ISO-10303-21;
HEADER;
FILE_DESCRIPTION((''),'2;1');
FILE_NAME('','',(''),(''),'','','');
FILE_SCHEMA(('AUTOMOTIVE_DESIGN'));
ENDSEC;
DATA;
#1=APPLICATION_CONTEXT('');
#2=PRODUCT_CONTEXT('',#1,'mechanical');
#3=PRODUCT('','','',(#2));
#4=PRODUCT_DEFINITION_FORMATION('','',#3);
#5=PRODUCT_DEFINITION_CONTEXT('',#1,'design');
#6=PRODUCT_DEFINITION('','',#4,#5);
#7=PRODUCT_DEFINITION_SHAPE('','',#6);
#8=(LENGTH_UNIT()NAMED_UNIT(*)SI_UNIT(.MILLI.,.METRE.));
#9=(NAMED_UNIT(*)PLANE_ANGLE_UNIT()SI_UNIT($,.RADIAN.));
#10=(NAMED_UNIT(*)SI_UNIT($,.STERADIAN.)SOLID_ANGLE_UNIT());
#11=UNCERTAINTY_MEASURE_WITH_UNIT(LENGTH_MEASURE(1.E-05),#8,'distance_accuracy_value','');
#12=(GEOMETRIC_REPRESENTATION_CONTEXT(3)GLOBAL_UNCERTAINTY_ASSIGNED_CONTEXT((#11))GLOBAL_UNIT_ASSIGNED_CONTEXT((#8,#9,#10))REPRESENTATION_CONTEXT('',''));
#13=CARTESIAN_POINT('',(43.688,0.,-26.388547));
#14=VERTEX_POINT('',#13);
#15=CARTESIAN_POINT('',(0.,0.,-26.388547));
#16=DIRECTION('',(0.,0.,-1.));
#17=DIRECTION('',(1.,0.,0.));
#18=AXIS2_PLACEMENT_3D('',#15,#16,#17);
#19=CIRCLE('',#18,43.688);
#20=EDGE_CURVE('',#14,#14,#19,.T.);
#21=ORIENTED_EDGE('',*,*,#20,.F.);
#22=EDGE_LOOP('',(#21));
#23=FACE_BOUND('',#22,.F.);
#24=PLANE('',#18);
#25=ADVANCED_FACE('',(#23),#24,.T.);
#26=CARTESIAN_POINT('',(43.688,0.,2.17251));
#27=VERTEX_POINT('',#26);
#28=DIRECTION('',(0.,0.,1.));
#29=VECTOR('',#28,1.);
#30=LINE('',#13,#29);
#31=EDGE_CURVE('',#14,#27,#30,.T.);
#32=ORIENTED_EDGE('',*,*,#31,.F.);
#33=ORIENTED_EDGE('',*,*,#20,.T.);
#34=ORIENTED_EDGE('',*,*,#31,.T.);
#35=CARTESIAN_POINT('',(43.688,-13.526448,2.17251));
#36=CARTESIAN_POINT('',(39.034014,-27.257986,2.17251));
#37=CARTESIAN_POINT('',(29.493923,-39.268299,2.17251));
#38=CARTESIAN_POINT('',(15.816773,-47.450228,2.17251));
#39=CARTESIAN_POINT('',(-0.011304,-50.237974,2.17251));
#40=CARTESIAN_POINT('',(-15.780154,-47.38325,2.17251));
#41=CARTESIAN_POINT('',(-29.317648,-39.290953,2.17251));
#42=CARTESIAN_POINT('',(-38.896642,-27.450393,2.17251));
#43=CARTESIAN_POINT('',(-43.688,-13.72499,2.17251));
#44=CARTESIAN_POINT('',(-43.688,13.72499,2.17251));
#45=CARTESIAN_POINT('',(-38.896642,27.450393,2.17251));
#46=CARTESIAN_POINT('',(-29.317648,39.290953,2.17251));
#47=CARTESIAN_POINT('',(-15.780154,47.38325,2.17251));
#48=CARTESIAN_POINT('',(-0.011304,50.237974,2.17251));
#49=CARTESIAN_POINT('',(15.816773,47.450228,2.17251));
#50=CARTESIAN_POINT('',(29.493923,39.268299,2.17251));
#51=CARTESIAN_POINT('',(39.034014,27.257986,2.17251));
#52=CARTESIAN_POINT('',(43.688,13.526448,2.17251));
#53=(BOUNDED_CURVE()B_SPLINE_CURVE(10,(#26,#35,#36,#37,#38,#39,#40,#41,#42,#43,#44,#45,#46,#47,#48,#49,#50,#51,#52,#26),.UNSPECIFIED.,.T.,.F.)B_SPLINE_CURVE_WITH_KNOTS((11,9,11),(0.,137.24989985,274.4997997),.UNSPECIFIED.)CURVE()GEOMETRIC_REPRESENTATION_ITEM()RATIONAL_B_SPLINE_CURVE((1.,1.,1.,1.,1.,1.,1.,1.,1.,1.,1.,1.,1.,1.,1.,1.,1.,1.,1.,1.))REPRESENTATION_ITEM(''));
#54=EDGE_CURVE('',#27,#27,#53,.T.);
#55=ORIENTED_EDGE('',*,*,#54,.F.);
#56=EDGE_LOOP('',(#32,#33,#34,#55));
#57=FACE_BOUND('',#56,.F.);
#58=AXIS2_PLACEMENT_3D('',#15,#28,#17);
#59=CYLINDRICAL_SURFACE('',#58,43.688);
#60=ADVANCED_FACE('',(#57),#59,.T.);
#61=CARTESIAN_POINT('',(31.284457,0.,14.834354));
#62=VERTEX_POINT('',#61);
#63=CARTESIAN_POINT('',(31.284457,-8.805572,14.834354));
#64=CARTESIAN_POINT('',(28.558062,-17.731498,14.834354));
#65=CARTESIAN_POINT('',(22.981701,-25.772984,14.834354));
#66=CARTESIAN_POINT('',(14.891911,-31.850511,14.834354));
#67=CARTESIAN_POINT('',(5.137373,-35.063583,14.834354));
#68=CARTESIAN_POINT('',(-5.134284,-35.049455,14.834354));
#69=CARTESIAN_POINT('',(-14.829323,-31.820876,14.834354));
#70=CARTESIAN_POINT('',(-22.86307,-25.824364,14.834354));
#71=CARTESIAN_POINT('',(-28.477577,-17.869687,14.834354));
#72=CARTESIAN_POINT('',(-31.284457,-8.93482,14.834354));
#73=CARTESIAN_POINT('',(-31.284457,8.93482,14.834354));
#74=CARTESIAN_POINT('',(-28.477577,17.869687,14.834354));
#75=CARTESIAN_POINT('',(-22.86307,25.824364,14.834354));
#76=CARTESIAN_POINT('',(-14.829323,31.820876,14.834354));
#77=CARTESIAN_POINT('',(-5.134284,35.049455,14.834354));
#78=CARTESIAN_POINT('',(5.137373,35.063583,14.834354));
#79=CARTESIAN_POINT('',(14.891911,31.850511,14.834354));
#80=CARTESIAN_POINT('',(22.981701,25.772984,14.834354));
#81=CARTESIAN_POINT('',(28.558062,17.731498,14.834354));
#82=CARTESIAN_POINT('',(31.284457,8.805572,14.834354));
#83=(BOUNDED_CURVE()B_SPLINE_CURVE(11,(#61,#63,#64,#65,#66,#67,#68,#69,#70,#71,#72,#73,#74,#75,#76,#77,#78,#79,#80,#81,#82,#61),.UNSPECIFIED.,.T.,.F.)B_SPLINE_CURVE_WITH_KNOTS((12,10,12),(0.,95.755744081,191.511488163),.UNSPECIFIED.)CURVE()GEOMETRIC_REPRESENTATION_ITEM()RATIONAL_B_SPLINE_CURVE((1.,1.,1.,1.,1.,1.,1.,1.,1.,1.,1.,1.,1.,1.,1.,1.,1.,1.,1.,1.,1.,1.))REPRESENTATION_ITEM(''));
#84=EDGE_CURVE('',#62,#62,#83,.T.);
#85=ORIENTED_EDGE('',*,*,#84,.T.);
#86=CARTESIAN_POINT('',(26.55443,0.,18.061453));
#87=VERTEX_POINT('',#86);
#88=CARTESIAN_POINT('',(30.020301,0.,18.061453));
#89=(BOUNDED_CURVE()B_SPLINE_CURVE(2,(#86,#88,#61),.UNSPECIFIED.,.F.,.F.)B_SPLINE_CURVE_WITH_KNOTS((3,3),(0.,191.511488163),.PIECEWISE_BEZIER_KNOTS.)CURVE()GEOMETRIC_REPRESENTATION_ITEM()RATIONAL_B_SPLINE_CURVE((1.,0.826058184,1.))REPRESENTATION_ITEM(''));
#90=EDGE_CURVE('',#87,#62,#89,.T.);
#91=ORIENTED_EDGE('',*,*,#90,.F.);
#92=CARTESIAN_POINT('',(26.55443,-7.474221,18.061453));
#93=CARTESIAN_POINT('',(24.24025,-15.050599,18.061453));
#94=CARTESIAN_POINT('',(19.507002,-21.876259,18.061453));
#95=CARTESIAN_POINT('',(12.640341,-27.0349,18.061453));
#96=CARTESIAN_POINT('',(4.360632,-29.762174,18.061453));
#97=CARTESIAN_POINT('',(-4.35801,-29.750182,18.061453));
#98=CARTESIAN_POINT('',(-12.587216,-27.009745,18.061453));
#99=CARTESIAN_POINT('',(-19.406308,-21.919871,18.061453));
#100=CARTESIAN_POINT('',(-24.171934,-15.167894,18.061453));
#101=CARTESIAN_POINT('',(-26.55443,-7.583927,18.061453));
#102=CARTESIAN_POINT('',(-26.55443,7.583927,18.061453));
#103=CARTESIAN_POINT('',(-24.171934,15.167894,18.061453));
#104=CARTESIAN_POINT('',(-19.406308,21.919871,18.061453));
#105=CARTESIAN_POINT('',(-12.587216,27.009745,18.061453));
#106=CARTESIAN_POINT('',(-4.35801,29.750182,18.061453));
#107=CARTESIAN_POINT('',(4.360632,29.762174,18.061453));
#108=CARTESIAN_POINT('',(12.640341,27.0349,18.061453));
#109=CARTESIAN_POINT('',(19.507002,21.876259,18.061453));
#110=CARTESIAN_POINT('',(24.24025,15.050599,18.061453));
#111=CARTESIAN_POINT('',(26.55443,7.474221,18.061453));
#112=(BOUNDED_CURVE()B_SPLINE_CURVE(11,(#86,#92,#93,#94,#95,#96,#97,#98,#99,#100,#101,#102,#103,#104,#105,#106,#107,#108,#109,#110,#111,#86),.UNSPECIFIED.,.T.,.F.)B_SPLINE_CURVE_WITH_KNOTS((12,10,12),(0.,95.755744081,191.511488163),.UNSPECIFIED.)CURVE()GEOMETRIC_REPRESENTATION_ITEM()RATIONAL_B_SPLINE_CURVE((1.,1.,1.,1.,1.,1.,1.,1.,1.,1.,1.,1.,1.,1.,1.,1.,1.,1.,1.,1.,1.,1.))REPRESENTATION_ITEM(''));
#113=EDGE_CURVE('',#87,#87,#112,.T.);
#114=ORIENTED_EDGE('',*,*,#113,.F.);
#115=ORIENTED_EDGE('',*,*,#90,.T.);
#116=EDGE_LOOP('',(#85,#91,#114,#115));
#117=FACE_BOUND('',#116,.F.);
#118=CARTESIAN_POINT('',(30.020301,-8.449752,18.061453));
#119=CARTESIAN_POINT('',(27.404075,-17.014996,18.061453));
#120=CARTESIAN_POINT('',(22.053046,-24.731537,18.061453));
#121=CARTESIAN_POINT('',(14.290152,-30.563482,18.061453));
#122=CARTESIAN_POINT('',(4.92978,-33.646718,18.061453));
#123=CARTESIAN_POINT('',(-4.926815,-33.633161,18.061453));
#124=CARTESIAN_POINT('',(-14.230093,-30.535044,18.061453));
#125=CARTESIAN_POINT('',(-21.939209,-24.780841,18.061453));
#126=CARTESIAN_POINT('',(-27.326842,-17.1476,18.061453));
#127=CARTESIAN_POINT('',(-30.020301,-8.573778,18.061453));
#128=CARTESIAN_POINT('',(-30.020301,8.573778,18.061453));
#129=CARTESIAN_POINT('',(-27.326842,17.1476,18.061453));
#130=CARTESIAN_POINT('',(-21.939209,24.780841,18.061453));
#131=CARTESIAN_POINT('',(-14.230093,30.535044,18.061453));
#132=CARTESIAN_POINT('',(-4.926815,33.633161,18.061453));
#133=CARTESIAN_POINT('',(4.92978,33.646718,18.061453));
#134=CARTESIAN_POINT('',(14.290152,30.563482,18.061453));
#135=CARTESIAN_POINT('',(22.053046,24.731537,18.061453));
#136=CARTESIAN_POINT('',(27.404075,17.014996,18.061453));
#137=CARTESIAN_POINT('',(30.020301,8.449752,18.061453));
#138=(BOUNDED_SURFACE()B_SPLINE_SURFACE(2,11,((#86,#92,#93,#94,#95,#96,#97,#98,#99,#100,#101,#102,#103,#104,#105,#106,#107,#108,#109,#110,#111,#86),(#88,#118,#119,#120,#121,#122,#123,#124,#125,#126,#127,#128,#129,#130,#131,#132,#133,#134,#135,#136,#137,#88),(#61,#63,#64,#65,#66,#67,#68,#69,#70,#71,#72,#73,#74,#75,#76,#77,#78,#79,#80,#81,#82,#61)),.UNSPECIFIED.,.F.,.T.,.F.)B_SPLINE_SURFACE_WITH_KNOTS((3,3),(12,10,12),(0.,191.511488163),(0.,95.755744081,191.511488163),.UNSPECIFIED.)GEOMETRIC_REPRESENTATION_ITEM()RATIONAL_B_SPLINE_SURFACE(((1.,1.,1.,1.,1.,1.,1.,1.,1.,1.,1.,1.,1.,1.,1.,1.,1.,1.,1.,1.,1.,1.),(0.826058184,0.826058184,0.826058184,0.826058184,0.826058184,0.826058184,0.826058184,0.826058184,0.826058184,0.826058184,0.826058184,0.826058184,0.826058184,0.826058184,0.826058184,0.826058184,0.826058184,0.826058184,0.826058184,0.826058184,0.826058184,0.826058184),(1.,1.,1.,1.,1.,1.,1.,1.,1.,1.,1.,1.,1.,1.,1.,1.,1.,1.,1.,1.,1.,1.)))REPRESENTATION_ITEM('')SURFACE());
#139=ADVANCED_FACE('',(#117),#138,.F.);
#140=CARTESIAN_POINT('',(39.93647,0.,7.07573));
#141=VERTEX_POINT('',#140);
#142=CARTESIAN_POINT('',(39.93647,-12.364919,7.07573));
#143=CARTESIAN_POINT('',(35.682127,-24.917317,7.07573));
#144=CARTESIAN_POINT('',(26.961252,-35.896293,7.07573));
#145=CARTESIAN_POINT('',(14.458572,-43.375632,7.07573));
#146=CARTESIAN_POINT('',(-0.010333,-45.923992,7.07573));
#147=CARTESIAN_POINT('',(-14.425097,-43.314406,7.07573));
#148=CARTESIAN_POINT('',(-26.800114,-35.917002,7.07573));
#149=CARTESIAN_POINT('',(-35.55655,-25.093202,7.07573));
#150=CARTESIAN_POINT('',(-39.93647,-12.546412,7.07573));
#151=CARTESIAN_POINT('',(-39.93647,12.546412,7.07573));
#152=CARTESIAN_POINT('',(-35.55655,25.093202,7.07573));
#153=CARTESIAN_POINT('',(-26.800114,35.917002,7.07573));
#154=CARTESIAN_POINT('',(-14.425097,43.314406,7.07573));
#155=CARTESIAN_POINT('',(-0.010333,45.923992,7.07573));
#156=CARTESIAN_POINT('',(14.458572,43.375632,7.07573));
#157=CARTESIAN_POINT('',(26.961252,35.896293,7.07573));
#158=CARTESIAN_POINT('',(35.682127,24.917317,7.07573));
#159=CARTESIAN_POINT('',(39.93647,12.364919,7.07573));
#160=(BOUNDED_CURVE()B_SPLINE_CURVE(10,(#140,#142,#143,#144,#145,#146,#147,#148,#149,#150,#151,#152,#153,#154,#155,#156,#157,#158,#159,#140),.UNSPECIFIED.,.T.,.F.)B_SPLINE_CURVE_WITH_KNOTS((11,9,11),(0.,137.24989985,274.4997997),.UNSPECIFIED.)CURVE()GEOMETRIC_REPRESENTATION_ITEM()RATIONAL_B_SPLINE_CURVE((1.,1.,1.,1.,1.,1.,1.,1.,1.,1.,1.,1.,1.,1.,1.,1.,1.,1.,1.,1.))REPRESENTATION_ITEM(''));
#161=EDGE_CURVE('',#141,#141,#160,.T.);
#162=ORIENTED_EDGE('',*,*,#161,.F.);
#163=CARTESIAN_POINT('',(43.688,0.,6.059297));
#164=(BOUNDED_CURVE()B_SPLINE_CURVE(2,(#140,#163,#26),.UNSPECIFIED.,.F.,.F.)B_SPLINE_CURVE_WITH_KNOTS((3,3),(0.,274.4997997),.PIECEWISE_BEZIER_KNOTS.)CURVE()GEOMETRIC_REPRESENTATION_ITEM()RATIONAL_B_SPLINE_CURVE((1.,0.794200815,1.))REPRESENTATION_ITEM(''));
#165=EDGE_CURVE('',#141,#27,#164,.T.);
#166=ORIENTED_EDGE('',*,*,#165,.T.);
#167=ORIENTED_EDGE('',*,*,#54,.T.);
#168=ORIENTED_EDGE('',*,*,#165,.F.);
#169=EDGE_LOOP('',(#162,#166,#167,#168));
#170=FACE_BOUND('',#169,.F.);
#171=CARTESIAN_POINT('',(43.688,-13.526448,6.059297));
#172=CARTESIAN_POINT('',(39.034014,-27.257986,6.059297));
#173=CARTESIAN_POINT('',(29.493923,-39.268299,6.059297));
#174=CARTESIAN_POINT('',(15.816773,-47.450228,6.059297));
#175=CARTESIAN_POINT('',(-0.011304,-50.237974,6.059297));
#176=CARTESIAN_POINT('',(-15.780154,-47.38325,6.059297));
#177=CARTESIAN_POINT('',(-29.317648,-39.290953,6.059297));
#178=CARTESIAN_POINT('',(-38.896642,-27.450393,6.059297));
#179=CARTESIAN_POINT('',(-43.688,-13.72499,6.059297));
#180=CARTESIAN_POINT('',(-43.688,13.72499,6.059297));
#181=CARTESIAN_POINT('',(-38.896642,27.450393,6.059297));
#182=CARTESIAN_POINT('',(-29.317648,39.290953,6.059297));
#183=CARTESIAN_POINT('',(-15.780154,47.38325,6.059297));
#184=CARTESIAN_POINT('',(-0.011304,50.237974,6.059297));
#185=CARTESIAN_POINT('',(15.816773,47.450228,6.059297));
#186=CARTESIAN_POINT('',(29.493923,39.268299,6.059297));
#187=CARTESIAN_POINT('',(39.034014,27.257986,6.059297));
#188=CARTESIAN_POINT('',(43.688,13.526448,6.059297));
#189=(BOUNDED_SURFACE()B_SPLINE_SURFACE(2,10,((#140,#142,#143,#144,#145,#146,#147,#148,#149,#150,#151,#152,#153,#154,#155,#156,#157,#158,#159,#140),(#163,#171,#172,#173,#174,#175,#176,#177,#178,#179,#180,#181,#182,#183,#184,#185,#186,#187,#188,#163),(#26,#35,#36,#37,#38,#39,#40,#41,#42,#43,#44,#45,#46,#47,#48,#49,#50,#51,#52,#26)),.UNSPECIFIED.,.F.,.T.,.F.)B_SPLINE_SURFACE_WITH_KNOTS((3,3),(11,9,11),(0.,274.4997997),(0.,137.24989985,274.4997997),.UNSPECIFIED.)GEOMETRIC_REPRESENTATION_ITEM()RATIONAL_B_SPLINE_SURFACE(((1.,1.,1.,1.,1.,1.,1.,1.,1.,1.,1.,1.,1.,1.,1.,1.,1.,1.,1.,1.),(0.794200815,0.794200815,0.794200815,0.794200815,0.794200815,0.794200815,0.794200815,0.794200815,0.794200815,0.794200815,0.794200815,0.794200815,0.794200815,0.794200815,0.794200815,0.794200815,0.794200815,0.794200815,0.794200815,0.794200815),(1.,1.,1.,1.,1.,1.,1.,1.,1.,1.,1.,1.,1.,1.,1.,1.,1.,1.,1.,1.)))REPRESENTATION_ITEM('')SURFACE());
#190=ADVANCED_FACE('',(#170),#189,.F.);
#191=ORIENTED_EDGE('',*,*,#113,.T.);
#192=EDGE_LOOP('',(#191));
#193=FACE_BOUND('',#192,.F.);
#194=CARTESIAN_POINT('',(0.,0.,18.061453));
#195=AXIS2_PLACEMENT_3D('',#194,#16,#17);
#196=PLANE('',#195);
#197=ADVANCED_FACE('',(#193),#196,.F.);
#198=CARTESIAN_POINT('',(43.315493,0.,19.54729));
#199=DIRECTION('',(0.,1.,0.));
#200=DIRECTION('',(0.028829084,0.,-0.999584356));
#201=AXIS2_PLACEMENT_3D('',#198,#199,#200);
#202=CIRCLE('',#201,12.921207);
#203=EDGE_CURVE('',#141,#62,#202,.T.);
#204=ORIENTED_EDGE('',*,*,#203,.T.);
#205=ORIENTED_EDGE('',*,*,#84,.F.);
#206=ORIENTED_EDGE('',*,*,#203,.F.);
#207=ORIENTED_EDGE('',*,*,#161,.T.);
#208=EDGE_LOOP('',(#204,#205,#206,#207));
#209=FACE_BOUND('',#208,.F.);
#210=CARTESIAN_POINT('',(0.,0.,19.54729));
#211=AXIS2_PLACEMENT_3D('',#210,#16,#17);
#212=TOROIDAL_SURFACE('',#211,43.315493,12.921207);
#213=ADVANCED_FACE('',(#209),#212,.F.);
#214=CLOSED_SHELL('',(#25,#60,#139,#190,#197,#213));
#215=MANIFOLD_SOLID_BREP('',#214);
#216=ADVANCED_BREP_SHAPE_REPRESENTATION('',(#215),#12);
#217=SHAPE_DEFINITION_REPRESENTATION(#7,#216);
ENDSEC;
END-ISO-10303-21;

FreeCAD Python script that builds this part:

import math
import FreeCAD as App
import Part
import Sketcher
Q = App.Units.Quantity


def edges_at(feature, points):
    """Names of the edges that pass closest to the given points."""
    edges = feature.Shape.Edges
    near = lambda p: min(range(len(edges)), key=lambda i: edges[i].distToShape(Part.Vertex(*p))[0])
    return sorted({f"Edge{near(p) + 1}" for p in points})

doc = App.newDocument("Part")
body = doc.addObject("PartDesign::Body", "Body")

# Sketch on XZ plane
sketch1 = body.newObject("Sketcher::SketchObject", "Sketch")
sketch1.AttachmentSupport = (doc.getObject("XZ_Plane"), [""])
sketch1.MapMode = "FlatFace"
sketch1.addGeometry([
    Part.LineSegment(App.Vector(30.48, 18.061453, 0), App.Vector(0, 18.061453, 0)),  # 0
    Part.LineSegment(App.Vector(0, 18.061453, 0), App.Vector(0, -26.388547, 0)),  # 1
    Part.LineSegment(App.Vector(0, -26.388547, 0), App.Vector(43.688, -26.388547, 0)),  # 2
    Part.LineSegment(App.Vector(43.688, -26.388547, 0), App.Vector(43.688, 6.631453, 0)),  # 3
    Part.ArcOfCircle(Part.Circle(App.Vector(43.315493, 19.54729, 0), App.Vector(0, 0, 1), 12.921207), math.radians(-173.39683), math.radians(-88.347986)),  # 4
], False)
sketch1.addConstraint([
    Sketcher.Constraint("Coincident", 0, 2, 1, 1),
    Sketcher.Constraint("Coincident", 1, 2, 2, 1),
    Sketcher.Constraint("Coincident", 2, 2, 3, 1),
    Sketcher.Constraint("Coincident", 3, 2, 4, 2),
    Sketcher.Constraint("Coincident", 4, 1, 0, 1),
    Sketcher.Constraint("Horizontal", 0),
    Sketcher.Constraint("Vertical", 1),
    Sketcher.Constraint("Horizontal", 2),
    Sketcher.Constraint("Vertical", 3),
    Sketcher.Constraint("PointOnObject", 0, 2, -2),
    Sketcher.Constraint("DistanceX", 0, 2, 0, 1, Q("1.2 in")),
    Sketcher.Constraint("DistanceY", 3, 1, 3, 2, Q("1.3 in")),
    Sketcher.Constraint("DistanceX", 2, 1, 2, 2, Q("1.72 in")),
    Sketcher.Constraint("DistanceY", 1, 2, 1, 1, Q("1.75 in")),
    Sketcher.Constraint("Radius", 4, Q("12.921207 mm")),
    Sketcher.Constraint("DistanceY", -1, 1, 4, 3, Q("19.54729 mm")),
])
revolution = body.newObject("PartDesign::Revolution", "Revolution")
revolution.Profile = sketch1
revolution.ReferenceAxis = (sketch1, ["V_Axis"])
revolution.Angle = 360
doc.recompute()

fillet = body.newObject("PartDesign::Fillet", "Fillet")
fillet.Base = (revolution, edges_at(revolution, [(-30.48, 0, 18.061)]))
fillet.Radius = Q("0.2 in")
doc.recompute()

fillet2 = body.newObject("PartDesign::Fillet", "Fillet001")
fillet2.Base = (fillet, edges_at(fillet, [(-43.688, 0, 6.631)]))
fillet2.Radius = Q("0.2 in")

doc.recompute()
